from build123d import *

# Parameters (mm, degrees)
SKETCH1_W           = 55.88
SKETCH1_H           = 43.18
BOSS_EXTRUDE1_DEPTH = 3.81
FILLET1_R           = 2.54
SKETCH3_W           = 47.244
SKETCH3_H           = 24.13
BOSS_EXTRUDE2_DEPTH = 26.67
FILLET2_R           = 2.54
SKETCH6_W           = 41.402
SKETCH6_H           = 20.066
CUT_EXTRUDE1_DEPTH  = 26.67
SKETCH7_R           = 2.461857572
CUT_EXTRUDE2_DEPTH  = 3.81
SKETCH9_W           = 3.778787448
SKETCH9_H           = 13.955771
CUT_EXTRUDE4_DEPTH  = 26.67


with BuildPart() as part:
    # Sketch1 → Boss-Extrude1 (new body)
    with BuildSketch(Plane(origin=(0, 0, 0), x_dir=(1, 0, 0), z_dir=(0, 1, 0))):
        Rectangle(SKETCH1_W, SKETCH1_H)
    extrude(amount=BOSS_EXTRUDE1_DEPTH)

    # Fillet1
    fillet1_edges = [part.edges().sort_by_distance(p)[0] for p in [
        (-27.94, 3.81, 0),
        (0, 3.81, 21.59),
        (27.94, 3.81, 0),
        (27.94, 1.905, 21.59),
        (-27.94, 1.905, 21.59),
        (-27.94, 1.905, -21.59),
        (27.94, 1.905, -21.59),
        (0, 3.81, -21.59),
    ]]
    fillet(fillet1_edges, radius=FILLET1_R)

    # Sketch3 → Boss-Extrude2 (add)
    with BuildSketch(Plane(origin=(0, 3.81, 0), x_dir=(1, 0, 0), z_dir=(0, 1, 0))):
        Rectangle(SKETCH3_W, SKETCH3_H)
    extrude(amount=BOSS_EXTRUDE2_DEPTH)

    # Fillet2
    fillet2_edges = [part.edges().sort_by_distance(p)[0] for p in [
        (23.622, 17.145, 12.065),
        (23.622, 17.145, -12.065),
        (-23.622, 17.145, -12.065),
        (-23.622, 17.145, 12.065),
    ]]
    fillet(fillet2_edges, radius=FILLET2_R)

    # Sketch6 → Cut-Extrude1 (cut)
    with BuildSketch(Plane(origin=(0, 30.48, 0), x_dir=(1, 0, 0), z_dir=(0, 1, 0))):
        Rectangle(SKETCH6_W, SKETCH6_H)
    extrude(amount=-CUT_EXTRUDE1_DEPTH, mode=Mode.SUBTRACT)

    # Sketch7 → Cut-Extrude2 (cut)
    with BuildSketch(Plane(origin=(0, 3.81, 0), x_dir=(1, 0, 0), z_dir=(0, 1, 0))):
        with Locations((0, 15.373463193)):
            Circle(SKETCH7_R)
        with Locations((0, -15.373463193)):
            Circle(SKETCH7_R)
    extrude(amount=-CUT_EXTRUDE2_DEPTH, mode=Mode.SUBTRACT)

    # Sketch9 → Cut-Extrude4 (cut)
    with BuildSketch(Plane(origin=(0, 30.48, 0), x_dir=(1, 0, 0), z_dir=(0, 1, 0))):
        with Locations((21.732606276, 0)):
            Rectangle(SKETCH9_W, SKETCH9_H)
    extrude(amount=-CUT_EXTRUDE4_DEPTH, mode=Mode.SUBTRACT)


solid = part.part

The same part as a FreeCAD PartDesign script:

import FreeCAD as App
import Part
import Sketcher
Q = App.Units.Quantity


def edges_at(feature, points):
    """Names of the edges that pass closest to the given points."""
    edges = feature.Shape.Edges
    near = lambda p: min(range(len(edges)), key=lambda i: edges[i].distToShape(Part.Vertex(*p))[0])
    return sorted({f"Edge{near(p) + 1}" for p in points})

doc = App.newDocument("Part")
body = doc.addObject("PartDesign::Body", "Body")

# Sketch on XZ plane
sketch1 = body.newObject("Sketcher::SketchObject", "Sketch")
sketch1.AttachmentSupport = (doc.getObject("XZ_Plane"), [""])
sketch1.MapMode = "FlatFace"
sketch1.addGeometry([
    Part.LineSegment(App.Vector(-28, -22, 0), App.Vector(-28, 22, 0)),
    Part.LineSegment(App.Vector(-28, 22, 0), App.Vector(28, 22, 0)),
    Part.LineSegment(App.Vector(28, 22, 0), App.Vector(28, -22, 0)),
    Part.LineSegment(App.Vector(28, -22, 0), App.Vector(-28, -22, 0)),
], False)
sketch1.addConstraint([
    Sketcher.Constraint("Coincident", 0, 2, 1, 1),
    Sketcher.Constraint("Coincident", 1, 2, 2, 1),
    Sketcher.Constraint("Coincident", 2, 2, 3, 1),
    Sketcher.Constraint("Coincident", 3, 2, 0, 1),
    Sketcher.Constraint("Vertical", 0),
    Sketcher.Constraint("Horizontal", 1),
    Sketcher.Constraint("Vertical", 2),
    Sketcher.Constraint("Horizontal", 3),
    Sketcher.Constraint("Symmetric", 0, 2, 2, 2, -1, 1),
    Sketcher.Constraint("DistanceX", 1, 1, 1, 2, Q("2.2 in")),
    Sketcher.Constraint("DistanceY", 0, 1, 0, 2, Q("1.7 in")),
])
pad1 = body.newObject("PartDesign::Pad", "Pad")
pad1.Profile = sketch1
pad1.Length = Q("0.15 in")
pad1.Reversed = True
doc.recompute()

fillet = body.newObject("PartDesign::Fillet", "Fillet")
fillet.Base = (pad1, edges_at(pad1, [
    (-27.94, 3.81, 0),
    (0, 3.81, 21.59),
    (27.94, 3.81, 0),
    (27.94, 1.905, 21.59),
    (-27.94, 1.905, 21.59),
    (-27.94, 1.905, -21.59),
    (27.94, 1.905, -21.59),
    (0, 3.81, -21.59),
]))
fillet.Radius = Q("0.1 in")

# Sketch on XZ plane
sketch2 = body.newObject("Sketcher::SketchObject", "Sketch001")
sketch2.AttachmentSupport = (doc.getObject("XZ_Plane"), [""])
sketch2.MapMode = "FlatFace"
sketch2.AttachmentOffset = App.Placement(App.Vector(0, 0, -0.15 * 25.4), App.Rotation())
sketch2.addGeometry([
    Part.LineSegment(App.Vector(-24, -12, 0), App.Vector(-24, 12, 0)),
    Part.LineSegment(App.Vector(-24, 12, 0), App.Vector(24, 12, 0)),
    Part.LineSegment(App.Vector(24, 12, 0), App.Vector(24, -12, 0)),
    Part.LineSegment(App.Vector(24, -12, 0), App.Vector(-24, -12, 0)),
], False)
sketch2.addConstraint([
    Sketcher.Constraint("Coincident", 0, 2, 1, 1),
    Sketcher.Constraint("Coincident", 1, 2, 2, 1),
    Sketcher.Constraint("Coincident", 2, 2, 3, 1),
    Sketcher.Constraint("Coincident", 3, 2, 0, 1),
    Sketcher.Constraint("Vertical", 0),
    Sketcher.Constraint("Horizontal", 1),
    Sketcher.Constraint("Vertical", 2),
    Sketcher.Constraint("Horizontal", 3),
    Sketcher.Constraint("Symmetric", 0, 2, 2, 2, -1, 1),
    Sketcher.Constraint("DistanceX", 1, 1, 1, 2, Q("1.86 in")),
    Sketcher.Constraint("DistanceY", 0, 1, 0, 2, Q("0.95 in")),
])
pad2 = body.newObject("PartDesign::Pad", "Pad001")
pad2.Profile = sketch2
pad2.Length = Q("1.05 in")
pad2.Reversed = True
doc.recompute()

fillet2 = body.newObject("PartDesign::Fillet", "Fillet001")
fillet2.Base = (pad2, edges_at(pad2, [
    (23.622, 17.145, 12.065),
    (23.622, 17.145, -12.065),
    (-23.622, 17.145, -12.065),
    (-23.622, 17.145, 12.065),
]))
fillet2.Radius = Q("0.1 in")

# Sketch on XZ plane
sketch3 = body.newObject("Sketcher::SketchObject", "Sketch002")
sketch3.AttachmentSupport = (doc.getObject("XZ_Plane"), [""])
sketch3.MapMode = "FlatFace"
sketch3.AttachmentOffset = App.Placement(App.Vector(0, 0, -1.2 * 25.4), App.Rotation())
sketch3.addGeometry([
    Part.LineSegment(App.Vector(-21, -10, 0), App.Vector(-21, 10, 0)),
    Part.LineSegment(App.Vector(-21, 10, 0), App.Vector(21, 10, 0)),
    Part.LineSegment(App.Vector(21, 10, 0), App.Vector(21, -10, 0)),
    Part.LineSegment(App.Vector(21, -10, 0), App.Vector(-21, -10, 0)),
], False)
sketch3.addConstraint([
    Sketcher.Constraint("Coincident", 0, 2, 1, 1),
    Sketcher.Constraint("Coincident", 1, 2, 2, 1),
    Sketcher.Constraint("Coincident", 2, 2, 3, 1),
    Sketcher.Constraint("Coincident", 3, 2, 0, 1),
    Sketcher.Constraint("Vertical", 0),
    Sketcher.Constraint("Horizontal", 1),
    Sketcher.Constraint("Vertical", 2),
    Sketcher.Constraint("Horizontal", 3),
    Sketcher.Constraint("Symmetric", 0, 2, 2, 2, -1, 1),
    Sketcher.Constraint("DistanceX", 1, 1, 1, 2, Q("1.63 in")),
    Sketcher.Constraint("DistanceY", 0, 1, 0, 2, Q("0.79 in")),
])
pocket1 = body.newObject("PartDesign::Pocket", "Pocket")
pocket1.Profile = sketch3
pocket1.Length = Q("1.05 in")
pocket1.Reversed = True

# Sketch on XZ plane
sketch4 = body.newObject("Sketcher::SketchObject", "Sketch003")
sketch4.AttachmentSupport = (doc.getObject("XZ_Plane"), [""])
sketch4.MapMode = "FlatFace"
sketch4.AttachmentOffset = App.Placement(App.Vector(0, 0, -0.15 * 25.4), App.Rotation())
sketch4.addGeometry([
    Part.Circle(App.Vector(0, -15.4, 0), App.Vector(0, 0, 1), 2.5),
    Part.Circle(App.Vector(0, 15.4, 0), App.Vector(0, 0, 1), 2.5),
], False)
sketch4.addConstraint([
    Sketcher.Constraint("Equal", 0, 1),
    Sketcher.Constraint("Symmetric", 0, 3, 1, 3, -1, 1),
    Sketcher.Constraint("PointOnObject", 0, 3, -2),
    Sketcher.Constraint("Diameter", 0, Q("4.923715 mm")),
    Sketcher.Constraint("DistanceY", 0, 3, -1, 1, Q("15.373463 mm")),
])
pocket2 = body.newObject("PartDesign::Pocket", "Pocket001")
pocket2.Profile = sketch4
pocket2.Length = Q("0.15 in")
pocket2.Reversed = True

# Sketch on XZ plane
sketch5 = body.newObject("Sketcher::SketchObject", "Sketch004")
sketch5.AttachmentSupport = (doc.getObject("XZ_Plane"), [""])
sketch5.MapMode = "FlatFace"
sketch5.AttachmentOffset = App.Placement(App.Vector(0, 0, -1.2 * 25.4), App.Rotation())
sketch5.addGeometry([
    Part.LineSegment(App.Vector(19.8, -7, 0), App.Vector(19.8, 7, 0)),
    Part.LineSegment(App.Vector(19.8, 7, 0), App.Vector(23.6, 7, 0)),
    Part.LineSegment(App.Vector(23.6, 7, 0), App.Vector(23.6, -7, 0)),
    Part.LineSegment(App.Vector(23.6, -7, 0), App.Vector(19.8, -7, 0)),
], False)
sketch5.addConstraint([
    Sketcher.Constraint("Coincident", 0, 2, 1, 1),
    Sketcher.Constraint("Coincident", 1, 2, 2, 1),
    Sketcher.Constraint("Coincident", 2, 2, 3, 1),
    Sketcher.Constraint("Coincident", 3, 2, 0, 1),
    Sketcher.Constraint("Vertical", 0),
    Sketcher.Constraint("Horizontal", 1),
    Sketcher.Constraint("Vertical", 2),
    Sketcher.Constraint("Horizontal", 3),
    Sketcher.Constraint("DistanceX", -1, 1, 1, 2, Q("0.93 in")),
    Sketcher.Constraint("DistanceY", 0, 1, 0, 2, Q("13.955771 mm")),
    Sketcher.Constraint("DistanceX", 1, 1, 1, 2, Q("3.778787 mm")),
    Sketcher.Constraint("DistanceY", -1, 1, 0, 2, Q("6.977886 mm")),
])
pocket3 = body.newObject("PartDesign::Pocket", "Pocket002")
pocket3.Profile = sketch5
pocket3.Length = Q("1.05 in")
pocket3.Reversed = True

doc.recompute()
